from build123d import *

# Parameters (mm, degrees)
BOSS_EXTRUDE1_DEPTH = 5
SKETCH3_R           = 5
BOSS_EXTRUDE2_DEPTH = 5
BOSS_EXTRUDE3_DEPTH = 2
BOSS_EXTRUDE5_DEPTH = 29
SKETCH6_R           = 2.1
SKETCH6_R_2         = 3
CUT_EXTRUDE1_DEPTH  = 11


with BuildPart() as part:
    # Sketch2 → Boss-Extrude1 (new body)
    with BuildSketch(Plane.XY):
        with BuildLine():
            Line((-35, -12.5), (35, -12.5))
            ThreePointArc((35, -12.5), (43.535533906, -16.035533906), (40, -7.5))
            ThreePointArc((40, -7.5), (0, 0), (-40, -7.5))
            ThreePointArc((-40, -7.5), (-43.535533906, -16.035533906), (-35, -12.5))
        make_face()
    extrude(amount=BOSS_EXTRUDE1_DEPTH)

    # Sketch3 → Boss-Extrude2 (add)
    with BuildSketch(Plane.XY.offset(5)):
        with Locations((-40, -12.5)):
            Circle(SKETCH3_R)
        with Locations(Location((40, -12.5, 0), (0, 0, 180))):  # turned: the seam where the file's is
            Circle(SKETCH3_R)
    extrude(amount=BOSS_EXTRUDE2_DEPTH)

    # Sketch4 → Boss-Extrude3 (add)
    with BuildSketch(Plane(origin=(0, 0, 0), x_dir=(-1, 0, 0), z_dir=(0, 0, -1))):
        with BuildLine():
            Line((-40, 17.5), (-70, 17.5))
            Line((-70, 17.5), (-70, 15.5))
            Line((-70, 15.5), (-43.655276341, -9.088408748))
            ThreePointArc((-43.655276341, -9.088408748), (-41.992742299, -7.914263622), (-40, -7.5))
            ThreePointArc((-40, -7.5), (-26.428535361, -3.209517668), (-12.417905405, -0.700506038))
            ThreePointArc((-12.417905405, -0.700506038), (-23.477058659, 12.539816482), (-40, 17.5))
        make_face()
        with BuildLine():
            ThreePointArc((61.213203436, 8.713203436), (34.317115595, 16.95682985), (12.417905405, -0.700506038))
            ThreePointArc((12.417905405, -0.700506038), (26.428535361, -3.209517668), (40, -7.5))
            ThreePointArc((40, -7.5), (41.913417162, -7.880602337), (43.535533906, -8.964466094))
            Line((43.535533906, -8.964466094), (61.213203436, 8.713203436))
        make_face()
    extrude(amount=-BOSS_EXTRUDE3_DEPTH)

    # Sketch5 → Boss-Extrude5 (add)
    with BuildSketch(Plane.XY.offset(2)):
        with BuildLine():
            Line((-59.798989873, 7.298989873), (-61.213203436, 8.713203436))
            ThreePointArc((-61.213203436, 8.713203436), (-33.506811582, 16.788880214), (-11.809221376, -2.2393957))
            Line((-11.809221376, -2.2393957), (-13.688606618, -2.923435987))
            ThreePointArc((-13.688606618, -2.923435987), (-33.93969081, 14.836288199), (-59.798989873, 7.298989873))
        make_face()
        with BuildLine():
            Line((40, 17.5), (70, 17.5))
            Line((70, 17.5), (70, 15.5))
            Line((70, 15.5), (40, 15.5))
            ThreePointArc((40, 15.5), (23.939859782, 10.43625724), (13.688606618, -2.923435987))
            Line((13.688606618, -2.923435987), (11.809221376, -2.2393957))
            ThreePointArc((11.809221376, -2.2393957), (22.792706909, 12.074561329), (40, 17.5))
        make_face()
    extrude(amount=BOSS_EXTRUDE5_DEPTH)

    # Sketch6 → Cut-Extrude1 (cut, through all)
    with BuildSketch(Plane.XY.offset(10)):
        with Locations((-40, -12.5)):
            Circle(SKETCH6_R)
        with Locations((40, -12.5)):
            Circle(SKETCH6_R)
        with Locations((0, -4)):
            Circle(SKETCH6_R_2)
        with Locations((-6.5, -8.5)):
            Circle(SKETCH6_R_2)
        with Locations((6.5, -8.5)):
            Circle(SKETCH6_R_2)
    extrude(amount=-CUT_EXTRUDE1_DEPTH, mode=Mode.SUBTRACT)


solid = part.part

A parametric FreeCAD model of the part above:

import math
import FreeCAD as App
import Part
import Sketcher

V = App.Vector
Q = App.Units.Quantity

doc = App.newDocument("Part")
body = doc.addObject("PartDesign::Body", "Body")

# Sketch on XY plane
sketch1 = doc.addObject("Sketcher::SketchObject", "Sketch")
body.addObject(sketch1)
sketch1.AttachmentSupport = (doc.XY_Plane, [""])
sketch1.MapMode = "FlatFace"
sketch1.addGeometry([
    Part.LineSegment(V(-35, -12, 0), V(35, -12, 0)),
    Part.ArcOfCircle(Part.Circle(V(40, -12, 0), V(0, 0, 1), 5), math.radians(180), math.radians(450)),
    Part.ArcOfCircle(Part.Circle(V(0, -110, 0), V(0, 0, 1), 110), math.radians(69), math.radians(111)),
    Part.ArcOfCircle(Part.Circle(V(-40, -12, 0), V(0, 0, 1), 5), math.radians(90), math.radians(360)),
], False)
sketch1.addConstraint([
    Sketcher.Constraint("Coincident", 0, 2, 1, 1),
    Sketcher.Constraint("Coincident", 1, 2, 2, 1),
    Sketcher.Constraint("Coincident", 2, 2, 3, 1),
    Sketcher.Constraint("Coincident", 3, 2, 0, 1),
    Sketcher.Constraint("Horizontal", 0),
    Sketcher.Constraint("Equal", 1, 3),
    Sketcher.Constraint("Symmetric", 1, 3, 3, 3, -2),
    Sketcher.Constraint("PointOnObject", 2, 3, -2),
    Sketcher.Constraint("Horizontal", 3, 3, 0, 2),
    Sketcher.Constraint("Vertical", 3, 3, 2, 2),
    Sketcher.Constraint("Radius", 1, Q("5 mm")),
    Sketcher.Constraint("DistanceX", 0, 1, 0, 2, Q("70 mm")),
    Sketcher.Constraint("DistanceY", 1, 3, -1, 1, Q("12.5 mm")),
    Sketcher.Constraint("Radius", 2, Q("110.416667 mm")),
])
pad1 = doc.addObject("PartDesign::Pad", "Pad")
body.addObject(pad1)
pad1.Profile = sketch1
pad1.Length = 5

# Sketch on XY plane
sketch2 = doc.addObject("Sketcher::SketchObject", "Sketch001")
body.addObject(sketch2)
sketch2.AttachmentSupport = (doc.XY_Plane, [""])
sketch2.MapMode = "FlatFace"
sketch2.AttachmentOffset = App.Placement(V(0, 0, 5), App.Rotation())
sketch2.addGeometry([
    Part.Circle(V(-40, -12, 0), V(0, 0, 1), 5),
    Part.Circle(V(40, -12, 0), V(0, 0, 1), 5),
], False)
sketch2.addConstraint([
    Sketcher.Constraint("Equal", 0, 1),
    Sketcher.Constraint("Symmetric", 0, 3, 1, 3, -2),
    Sketcher.Constraint("Diameter", 0, Q("10 mm")),
    Sketcher.Constraint("DistanceX", 0, 3, -1, 1, Q("40 mm")),
    Sketcher.Constraint("DistanceY", 0, 3, -1, 1, Q("12.5 mm")),
])
pad2 = doc.addObject("PartDesign::Pad", "Pad001")
body.addObject(pad2)
pad2.Profile = sketch2
pad2.Length = 5

# Sketch on XY plane
sketch3 = doc.addObject("Sketcher::SketchObject", "Sketch002")
body.addObject(sketch3)
sketch3.AttachmentSupport = (doc.XY_Plane, [""])
sketch3.MapMode = "FlatFace"
sketch3.addGeometry([
    Part.LineSegment(V(40, 17.5, 0), V(70, 17.5, 0)),  # 0
    Part.LineSegment(V(70, 17.5, 0), V(70, 15.5, 0)),  # 1
    Part.LineSegment(V(70, 15.5, 0), V(43.7, -9.1, 0)),  # 2
    Part.ArcOfCircle(Part.Circle(V(40, -12.5, 0), V(0, 0, 1), 5), math.radians(43), math.radians(90)),  # 3
    Part.ArcOfCircle(Part.Circle(V(0, -110.4, 0), V(0, 0, 1), 110.4), math.radians(68.76), math.radians(83.54)),  # 4
    Part.ArcOfCircle(Part.Circle(V(40, -12.5, 0), V(0, 0, 1), 30), math.radians(90), math.radians(157)),  # 5
    Part.ArcOfCircle(Part.Circle(V(-40, -12.5, 0), V(0, 0, 1), 30), math.radians(23), math.radians(135)),  # 6
    Part.ArcOfCircle(Part.Circle(V(0, -110.4, 0), V(0, 0, 1), 110.4), math.radians(96.46), math.radians(111.24)),  # 7
    Part.ArcOfCircle(Part.Circle(V(-40, -12.5, 0), V(0, 0, 1), 5), math.radians(90), math.radians(135)),  # 8
    Part.LineSegment(V(-43.5, -9, 0), V(-61.2, 8.7, 0)),  # 9
], False)
sketch3.addConstraint([
    Sketcher.Constraint("Coincident", 0, 2, 1, 1),
    Sketcher.Constraint("Coincident", 1, 2, 2, 1),
    Sketcher.Constraint("Coincident", 2, 2, 3, 1),
    Sketcher.Constraint("Coincident", 3, 2, 4, 1),
    Sketcher.Constraint("Coincident", 4, 2, 5, 2),
    Sketcher.Constraint("Tangent", 5, 1, 0, 1),
    Sketcher.Constraint("Coincident", 6, 1, 7, 1),
    Sketcher.Constraint("Coincident", 7, 2, 8, 1),
    Sketcher.Constraint("Coincident", 8, 2, 9, 1),
    Sketcher.Constraint("Coincident", 9, 2, 6, 2),
    Sketcher.Constraint("Horizontal", 0),
    Sketcher.Constraint("Vertical", 1),
    Sketcher.Constraint("Coincident", 5, 3, 3, 3),
    Sketcher.Constraint("Coincident", 7, 3, 4, 3),
    Sketcher.Constraint("Coincident", 8, 3, 6, 3),
    Sketcher.Constraint("Equal", 5, 6),
    Sketcher.Constraint("Equal", 4, 7),
    Sketcher.Constraint("Equal", 3, 8),
    Sketcher.Constraint("Symmetric", 3, 3, 6, 3, -2),
    Sketcher.Constraint("PointOnObject", 4, 3, -2),
    Sketcher.Constraint("Vertical", 5, 3, 3, 2),
    Sketcher.Constraint("Radius", 3, Q("5 mm")),
    Sketcher.Constraint("Radius", 5, Q("30 mm")),
    Sketcher.Constraint("DistanceX", 0, 1, 0, 2, Q("30 mm")),
    Sketcher.Constraint("DistanceY", 1, 2, 1, 1, Q("2 mm")),
    Sketcher.Constraint("Angle", 9, Q("135 deg")),
    Sketcher.Constraint("DistanceX", -1, 1, 3, 3, Q("40 mm")),
    Sketcher.Constraint("DistanceY", 3, 3, -1, 1, Q("12.5 mm")),
    Sketcher.Constraint("Radius", 4, Q("110.416667 mm")),
    Sketcher.Constraint("DistanceX", 9, 2, 6, 1, Q("48.795298 mm")),
    Sketcher.Constraint("DistanceY", 2, 2, -1, 1, Q("9.088409 mm")),
])
pad3 = doc.addObject("PartDesign::Pad", "Pad002")
body.addObject(pad3)
pad3.Profile = sketch3
pad3.Length = 2

# Sketch on XY plane
sketch4 = doc.addObject("Sketcher::SketchObject", "Sketch003")
body.addObject(sketch4)
sketch4.AttachmentSupport = (doc.XY_Plane, [""])
sketch4.MapMode = "FlatFace"
sketch4.AttachmentOffset = App.Placement(V(0, 0, 2), App.Rotation())
sketch4.addGeometry([
    Part.LineSegment(V(-61.2, 8.7, 0), V(-59.8, 7.3, 0)),  # 0
    Part.ArcOfCircle(Part.Circle(V(-40, -12.5, 0), V(0, 0, 1), 28), math.radians(20), math.radians(135)),  # 1
    Part.LineSegment(V(-13.7, -2.9, 0), V(-11.8, -2.2, 0)),  # 2
    Part.ArcOfCircle(Part.Circle(V(-40, -12.5, 0), V(0, 0, 1), 30), math.radians(20), math.radians(135)),  # 3
    Part.LineSegment(V(70, 17.5, 0), V(40, 17.5, 0)),  # 4
    Part.ArcOfCircle(Part.Circle(V(40, -12.5, 0), V(0, 0, 1), 30), math.radians(90), math.radians(160)),  # 5
    Part.LineSegment(V(11.8, -2.2, 0), V(13.7, -2.9, 0)),  # 6
    Part.ArcOfCircle(Part.Circle(V(40, -12.5, 0), V(0, 0, 1), 28), math.radians(90), math.radians(160)),  # 7
    Part.LineSegment(V(40, 15.5, 0), V(70, 15.5, 0)),  # 8
    Part.LineSegment(V(70, 15.5, 0), V(70, 17.5, 0)),  # 9
], False)
sketch4.addConstraint([
    Sketcher.Constraint("Coincident", 0, 2, 1, 2),
    Sketcher.Constraint("Coincident", 1, 1, 2, 1),
    Sketcher.Constraint("Coincident", 2, 2, 3, 1),
    Sketcher.Constraint("Coincident", 3, 2, 0, 1),
    Sketcher.Constraint("Tangent", 4, 2, 5, 1),
    Sketcher.Constraint("Coincident", 5, 2, 6, 1),
    Sketcher.Constraint("Coincident", 6, 2, 7, 2),
    Sketcher.Constraint("Tangent", 7, 1, 8, 1),
    Sketcher.Constraint("Coincident", 8, 2, 9, 1),
    Sketcher.Constraint("Coincident", 9, 2, 4, 1),
    Sketcher.Constraint("Horizontal", 4),
    Sketcher.Constraint("Horizontal", 8),
    Sketcher.Constraint("Vertical", 9),
    Sketcher.Constraint("Coincident", 3, 3, 1, 3),
    Sketcher.Constraint("Coincident", 7, 3, 5, 3),
    Sketcher.Constraint("Equal", 3, 5),
    Sketcher.Constraint("Equal", 1, 7),
    Sketcher.Constraint("Symmetric", 1, 3, 5, 3, -2),
    Sketcher.Constraint("Horizontal", 2, 2, 5, 2),
    Sketcher.Constraint("Horizontal", 1, 1, 6, 2),
    Sketcher.Constraint("Radius", 1, Q("28 mm")),
    Sketcher.Constraint("Radius", 3, Q("30 mm")),
    Sketcher.Constraint("DistanceX", 4, 2, 4, 1, Q("30 mm")),
    Sketcher.Constraint("Angle", 0, Q("-45 deg")),
    Sketcher.Constraint("Angle", 2, Q("20 deg")),
    Sketcher.Constraint("DistanceX", 1, 3, -1, 1, Q("40 mm")),
    Sketcher.Constraint("DistanceY", 1, 3, -1, 1, Q("12.5 mm")),
    Sketcher.Constraint("DistanceY", 2, 2, 3, 2, Q("10.952599 mm")),
    Sketcher.Constraint("DistanceX", 0, 2, -1, 1, Q("59.79899 mm")),
])
pad4 = doc.addObject("PartDesign::Pad", "Pad003")
body.addObject(pad4)
pad4.Profile = sketch4
pad4.Length = 29

# Sketch on XY plane
sketch5 = doc.addObject("Sketcher::SketchObject", "Sketch004")
body.addObject(sketch5)
sketch5.AttachmentSupport = (doc.XY_Plane, [""])
sketch5.MapMode = "FlatFace"
sketch5.AttachmentOffset = App.Placement(V(0, 0, 10), App.Rotation())
sketch5.addGeometry([
    Part.Circle(V(-40, -12.5, 0), V(0, 0, 1), 2.1),  # 0
    Part.Circle(V(40, -12.5, 0), V(0, 0, 1), 2.1),  # 1
    Part.Circle(V(0, -4, 0), V(0, 0, 1), 3),  # 2
    Part.Circle(V(-6.5, -8.5, 0), V(0, 0, 1), 3),  # 3
    Part.Circle(V(6.5, -8.5, 0), V(0, 0, 1), 3),  # 4
], False)
sketch5.addConstraint([
    Sketcher.Constraint("Equal", 0, 1),
    Sketcher.Constraint("Equal", 2, 3),
    Sketcher.Constraint("Equal", 3, 4),
    Sketcher.Constraint("Symmetric", 0, 3, 1, 3, -2),
    Sketcher.Constraint("Symmetric", 3, 3, 4, 3, -2),
    Sketcher.Constraint("PointOnObject", 2, 3, -2),
    Sketcher.Constraint("Diameter", 2, Q("6 mm")),
    Sketcher.Constraint("Diameter", 0, Q("4.2 mm")),
    Sketcher.Constraint("DistanceX", 0, 3, -1, 1, Q("40 mm")),
    Sketcher.Constraint("DistanceY", 2, 3, -1, 1, Q("4 mm")),
    Sketcher.Constraint("DistanceY", 0, 3, 3, 3, Q("4 mm")),
    Sketcher.Constraint("DistanceX", 3, 3, 4, 3, Q("13 mm")),
    Sketcher.Constraint("DistanceY", 0, 3, -1, 1, Q("12.5 mm")),
])
pocket1 = doc.addObject("PartDesign::Pocket", "Pocket")
body.addObject(pocket1)
pocket1.Profile = sketch5
pocket1.Type = "ThroughAll"

doc.recompute()
